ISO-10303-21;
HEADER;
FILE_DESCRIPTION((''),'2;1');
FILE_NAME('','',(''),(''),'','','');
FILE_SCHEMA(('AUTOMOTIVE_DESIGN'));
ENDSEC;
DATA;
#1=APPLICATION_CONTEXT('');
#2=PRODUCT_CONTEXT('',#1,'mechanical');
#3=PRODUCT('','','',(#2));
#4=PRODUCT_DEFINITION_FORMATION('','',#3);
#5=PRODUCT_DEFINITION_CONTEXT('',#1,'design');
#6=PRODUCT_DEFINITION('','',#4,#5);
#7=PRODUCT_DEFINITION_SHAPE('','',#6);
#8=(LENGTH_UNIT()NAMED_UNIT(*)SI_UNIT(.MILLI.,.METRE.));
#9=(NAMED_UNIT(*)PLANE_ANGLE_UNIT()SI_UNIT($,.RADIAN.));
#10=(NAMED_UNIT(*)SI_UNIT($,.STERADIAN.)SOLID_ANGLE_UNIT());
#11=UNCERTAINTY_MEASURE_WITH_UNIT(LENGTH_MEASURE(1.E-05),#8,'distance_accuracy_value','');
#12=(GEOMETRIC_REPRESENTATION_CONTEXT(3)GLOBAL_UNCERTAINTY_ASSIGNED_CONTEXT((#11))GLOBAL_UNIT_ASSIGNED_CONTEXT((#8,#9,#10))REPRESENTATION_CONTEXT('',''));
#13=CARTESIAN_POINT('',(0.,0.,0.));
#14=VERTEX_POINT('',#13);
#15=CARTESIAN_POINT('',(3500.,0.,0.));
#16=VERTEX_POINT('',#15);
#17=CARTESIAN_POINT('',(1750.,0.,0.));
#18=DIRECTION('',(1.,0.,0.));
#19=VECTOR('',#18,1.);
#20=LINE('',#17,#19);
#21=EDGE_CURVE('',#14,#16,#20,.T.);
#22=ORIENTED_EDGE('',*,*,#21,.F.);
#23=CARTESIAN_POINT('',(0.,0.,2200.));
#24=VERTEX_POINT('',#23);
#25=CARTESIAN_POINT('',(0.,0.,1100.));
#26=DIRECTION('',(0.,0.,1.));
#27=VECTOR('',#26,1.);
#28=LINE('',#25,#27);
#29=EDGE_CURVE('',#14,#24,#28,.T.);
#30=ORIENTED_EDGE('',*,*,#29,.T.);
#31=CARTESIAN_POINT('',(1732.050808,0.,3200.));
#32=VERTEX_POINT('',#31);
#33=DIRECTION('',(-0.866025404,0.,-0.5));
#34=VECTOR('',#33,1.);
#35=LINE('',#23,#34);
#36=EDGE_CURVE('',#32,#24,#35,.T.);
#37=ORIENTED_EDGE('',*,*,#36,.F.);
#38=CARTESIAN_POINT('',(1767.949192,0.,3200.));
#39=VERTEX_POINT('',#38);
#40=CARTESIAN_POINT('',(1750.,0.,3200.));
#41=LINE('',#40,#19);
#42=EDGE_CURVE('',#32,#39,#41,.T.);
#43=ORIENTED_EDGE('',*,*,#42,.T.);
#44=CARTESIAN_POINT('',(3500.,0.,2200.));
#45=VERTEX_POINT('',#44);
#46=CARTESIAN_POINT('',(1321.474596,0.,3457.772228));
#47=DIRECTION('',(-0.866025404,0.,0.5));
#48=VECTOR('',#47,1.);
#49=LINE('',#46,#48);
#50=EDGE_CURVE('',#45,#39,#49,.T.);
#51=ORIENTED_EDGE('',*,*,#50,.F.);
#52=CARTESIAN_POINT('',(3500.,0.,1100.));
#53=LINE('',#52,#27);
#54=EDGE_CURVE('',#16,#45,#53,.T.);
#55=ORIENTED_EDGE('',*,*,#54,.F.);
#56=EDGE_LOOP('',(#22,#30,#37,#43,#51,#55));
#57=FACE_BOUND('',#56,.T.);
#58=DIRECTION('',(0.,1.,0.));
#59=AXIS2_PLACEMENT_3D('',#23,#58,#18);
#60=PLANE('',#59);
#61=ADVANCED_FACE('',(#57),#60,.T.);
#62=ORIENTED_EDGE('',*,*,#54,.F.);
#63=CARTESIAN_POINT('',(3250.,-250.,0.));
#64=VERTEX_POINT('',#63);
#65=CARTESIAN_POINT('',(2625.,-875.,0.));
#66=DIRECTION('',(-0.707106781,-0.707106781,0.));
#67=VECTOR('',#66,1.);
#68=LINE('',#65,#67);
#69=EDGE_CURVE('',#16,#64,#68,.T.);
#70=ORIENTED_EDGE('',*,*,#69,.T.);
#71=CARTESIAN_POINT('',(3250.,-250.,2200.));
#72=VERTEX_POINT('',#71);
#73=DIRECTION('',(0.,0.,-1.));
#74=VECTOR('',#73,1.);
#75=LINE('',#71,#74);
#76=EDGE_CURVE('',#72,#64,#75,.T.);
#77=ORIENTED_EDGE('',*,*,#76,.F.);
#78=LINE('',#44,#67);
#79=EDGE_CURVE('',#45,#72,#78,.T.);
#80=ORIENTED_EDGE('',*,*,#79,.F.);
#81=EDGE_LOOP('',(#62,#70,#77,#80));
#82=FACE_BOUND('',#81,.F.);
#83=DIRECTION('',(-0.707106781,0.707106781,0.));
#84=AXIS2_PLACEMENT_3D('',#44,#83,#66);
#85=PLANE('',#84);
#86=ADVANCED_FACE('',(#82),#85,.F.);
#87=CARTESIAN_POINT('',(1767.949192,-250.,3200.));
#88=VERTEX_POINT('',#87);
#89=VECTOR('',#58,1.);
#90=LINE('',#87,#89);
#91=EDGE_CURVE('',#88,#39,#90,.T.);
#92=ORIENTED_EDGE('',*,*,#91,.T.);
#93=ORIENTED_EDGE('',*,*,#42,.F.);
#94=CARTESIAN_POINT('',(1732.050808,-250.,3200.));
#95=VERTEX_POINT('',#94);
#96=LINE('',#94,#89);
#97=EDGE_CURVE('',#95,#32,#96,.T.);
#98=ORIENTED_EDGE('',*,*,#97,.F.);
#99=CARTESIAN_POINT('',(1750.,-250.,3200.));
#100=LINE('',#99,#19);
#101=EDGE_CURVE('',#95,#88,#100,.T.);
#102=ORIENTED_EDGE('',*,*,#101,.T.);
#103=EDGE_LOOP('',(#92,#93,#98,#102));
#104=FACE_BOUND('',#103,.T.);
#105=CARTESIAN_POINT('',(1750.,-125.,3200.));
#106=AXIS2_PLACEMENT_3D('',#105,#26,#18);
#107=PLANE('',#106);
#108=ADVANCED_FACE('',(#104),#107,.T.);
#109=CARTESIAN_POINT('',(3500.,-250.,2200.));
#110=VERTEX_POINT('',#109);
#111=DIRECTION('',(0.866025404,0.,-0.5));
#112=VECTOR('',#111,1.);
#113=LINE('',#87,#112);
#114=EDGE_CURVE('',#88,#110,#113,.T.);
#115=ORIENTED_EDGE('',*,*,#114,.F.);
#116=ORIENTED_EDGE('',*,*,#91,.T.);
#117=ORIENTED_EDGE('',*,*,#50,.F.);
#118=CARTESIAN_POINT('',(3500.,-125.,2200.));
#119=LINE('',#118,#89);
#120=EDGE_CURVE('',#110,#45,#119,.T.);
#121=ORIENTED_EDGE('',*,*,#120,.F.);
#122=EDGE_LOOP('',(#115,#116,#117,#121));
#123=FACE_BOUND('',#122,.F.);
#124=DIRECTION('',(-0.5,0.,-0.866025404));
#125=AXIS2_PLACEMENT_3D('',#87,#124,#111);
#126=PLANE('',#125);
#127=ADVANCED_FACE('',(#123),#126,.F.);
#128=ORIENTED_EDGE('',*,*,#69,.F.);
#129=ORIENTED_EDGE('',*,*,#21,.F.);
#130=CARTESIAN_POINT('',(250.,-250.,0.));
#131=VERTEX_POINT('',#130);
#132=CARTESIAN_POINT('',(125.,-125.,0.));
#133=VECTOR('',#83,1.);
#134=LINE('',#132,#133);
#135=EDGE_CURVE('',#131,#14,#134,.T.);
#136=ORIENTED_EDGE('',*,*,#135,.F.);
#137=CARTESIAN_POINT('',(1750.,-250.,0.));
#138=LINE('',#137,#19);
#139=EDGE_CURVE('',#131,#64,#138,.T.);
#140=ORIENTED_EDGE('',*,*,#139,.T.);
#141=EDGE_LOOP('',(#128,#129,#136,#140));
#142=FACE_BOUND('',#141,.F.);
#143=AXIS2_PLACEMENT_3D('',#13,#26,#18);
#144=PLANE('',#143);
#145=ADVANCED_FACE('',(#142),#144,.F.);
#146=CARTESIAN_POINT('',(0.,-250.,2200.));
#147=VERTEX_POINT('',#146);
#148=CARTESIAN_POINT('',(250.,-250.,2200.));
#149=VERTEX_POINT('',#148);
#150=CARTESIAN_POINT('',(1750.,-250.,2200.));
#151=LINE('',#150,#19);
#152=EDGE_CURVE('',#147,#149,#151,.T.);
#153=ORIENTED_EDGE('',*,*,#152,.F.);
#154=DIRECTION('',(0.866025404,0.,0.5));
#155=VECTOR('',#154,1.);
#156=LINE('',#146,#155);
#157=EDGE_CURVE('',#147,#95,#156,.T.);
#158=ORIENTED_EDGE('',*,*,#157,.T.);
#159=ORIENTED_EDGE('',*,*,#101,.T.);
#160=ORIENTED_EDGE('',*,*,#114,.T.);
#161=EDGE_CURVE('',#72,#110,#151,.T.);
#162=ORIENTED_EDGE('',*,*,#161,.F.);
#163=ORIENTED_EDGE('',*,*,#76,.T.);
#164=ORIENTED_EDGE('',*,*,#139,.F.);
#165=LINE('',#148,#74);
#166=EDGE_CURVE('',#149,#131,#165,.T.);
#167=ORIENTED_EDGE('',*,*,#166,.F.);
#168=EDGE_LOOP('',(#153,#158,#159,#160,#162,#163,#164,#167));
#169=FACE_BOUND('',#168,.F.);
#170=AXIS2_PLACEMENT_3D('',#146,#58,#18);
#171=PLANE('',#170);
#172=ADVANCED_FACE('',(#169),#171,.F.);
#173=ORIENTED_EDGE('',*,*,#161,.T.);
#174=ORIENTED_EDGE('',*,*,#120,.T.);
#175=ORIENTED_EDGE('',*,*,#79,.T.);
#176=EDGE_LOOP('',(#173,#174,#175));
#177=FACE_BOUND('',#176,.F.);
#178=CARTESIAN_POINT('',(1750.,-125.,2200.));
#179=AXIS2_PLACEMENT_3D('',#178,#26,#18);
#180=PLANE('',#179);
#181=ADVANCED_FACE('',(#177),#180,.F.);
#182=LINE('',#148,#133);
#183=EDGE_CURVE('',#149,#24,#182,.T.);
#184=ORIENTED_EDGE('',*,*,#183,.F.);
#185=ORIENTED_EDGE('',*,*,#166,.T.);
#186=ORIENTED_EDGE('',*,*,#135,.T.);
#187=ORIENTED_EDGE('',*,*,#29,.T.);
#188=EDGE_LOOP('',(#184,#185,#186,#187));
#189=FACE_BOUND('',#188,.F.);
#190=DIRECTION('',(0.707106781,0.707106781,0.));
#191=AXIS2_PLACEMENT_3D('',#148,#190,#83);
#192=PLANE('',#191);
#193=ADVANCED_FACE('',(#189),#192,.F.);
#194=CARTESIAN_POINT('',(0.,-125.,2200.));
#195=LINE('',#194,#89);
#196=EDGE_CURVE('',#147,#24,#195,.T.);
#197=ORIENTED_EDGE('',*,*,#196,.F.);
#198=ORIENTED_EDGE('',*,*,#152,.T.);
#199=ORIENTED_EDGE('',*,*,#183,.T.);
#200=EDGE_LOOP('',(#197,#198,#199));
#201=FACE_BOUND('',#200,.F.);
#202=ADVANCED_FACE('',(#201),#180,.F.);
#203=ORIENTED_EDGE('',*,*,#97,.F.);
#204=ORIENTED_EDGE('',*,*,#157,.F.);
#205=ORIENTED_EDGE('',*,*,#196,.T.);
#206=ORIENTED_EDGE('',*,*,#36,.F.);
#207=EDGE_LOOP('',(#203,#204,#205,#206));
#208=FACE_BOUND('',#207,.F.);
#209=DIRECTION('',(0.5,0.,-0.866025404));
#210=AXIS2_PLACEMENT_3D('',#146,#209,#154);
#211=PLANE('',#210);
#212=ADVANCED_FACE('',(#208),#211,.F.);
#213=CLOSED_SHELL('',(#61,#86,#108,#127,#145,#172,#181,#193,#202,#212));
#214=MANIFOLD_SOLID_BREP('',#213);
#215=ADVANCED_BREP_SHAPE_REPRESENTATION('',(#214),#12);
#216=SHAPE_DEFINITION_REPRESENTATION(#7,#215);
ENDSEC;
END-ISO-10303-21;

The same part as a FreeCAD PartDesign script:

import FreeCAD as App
import Part
import Sketcher
Q = App.Units.Quantity


def add_polygon(sketch, points):
    """Adds a closed chain of lines whose ends are joined by coincident constraints."""
    first, n = sketch.GeometryCount, len(points)
    for a, b in zip(points, points[1:] + points[:1]):
        sketch.addGeometry(Part.LineSegment(App.Vector(*a, 0), App.Vector(*b, 0)), False)
    for i in range(n):
        sketch.addConstraint(Sketcher.Constraint("Coincident", first + i, 2, first + (i + 1) % n, 1))

doc = App.newDocument("Part")
body = doc.addObject("PartDesign::Body", "Body")

sketch1 = body.newObject("Sketcher::SketchObject", "Sketch")
sketch1.AttachmentSupport = (doc.getObject("XZ_Plane"), [""])
sketch1.MapMode = "FlatFace"
add_polygon(sketch1, [(0, 2200), (0, 0), (3500, 0), (3500, 2200)])
sketch1.addConstraint(Sketcher.Constraint("Vertical", 0))
sketch1.addConstraint(Sketcher.Constraint("Horizontal", 1))
sketch1.addConstraint(Sketcher.Constraint("Vertical", 2))
sketch1.addConstraint(Sketcher.Constraint("Horizontal", 3))
sketch1.addConstraint(Sketcher.Constraint("Coincident", 0, 2, -1, 1))
sketch1.addConstraint(Sketcher.Constraint("DistanceX", 1, 1, 1, 2, 3500.0))
sketch1.addConstraint(Sketcher.Constraint("DistanceY", 0, 2, 0, 1, 2200.0))
pad1 = body.newObject("PartDesign::Pad", "Pad")
pad1.Profile = sketch1
pad1.Length = 250

sketch2 = body.newObject("Sketcher::SketchObject", "Sketch001")
sketch2.AttachmentSupport = (doc.getObject("XY_Plane"), [""])
sketch2.MapMode = "FlatFace"
sketch2.AttachmentOffset = App.Placement(App.Vector(0, 0, 2200), App.Rotation())
add_polygon(sketch2, [(250, -250), (0, 0), (0, -250)])
add_polygon(sketch2, [(3250, -250), (3500, -250), (3500, 0)])
sketch2.addConstraint(Sketcher.Constraint("Vertical", 1))
sketch2.addConstraint(Sketcher.Constraint("Horizontal", 2))
sketch2.addConstraint(Sketcher.Constraint("Horizontal", 3))
sketch2.addConstraint(Sketcher.Constraint("Vertical", 4))
sketch2.addConstraint(Sketcher.Constraint("Coincident", 0, 2, -1, 1))
sketch2.addConstraint(Sketcher.Constraint("PointOnObject", 4, 2, -1))
sketch2.addConstraint(Sketcher.Constraint("Perpendicular", 0, 5))
sketch2.addConstraint(Sketcher.Constraint("Horizontal", 2, 2, 3, 2))
sketch2.addConstraint(Sketcher.Constraint("Equal", 2, 3))
sketch2.addConstraint(Sketcher.Constraint("DistanceX", 2, 1, 2, 2, 250.0))
sketch2.addConstraint(Sketcher.Constraint("DistanceX", -1, 1, 3, 2, 3500.0))
pocket1 = body.newObject("PartDesign::Pocket", "Pocket")
pocket1.Profile = sketch2
pocket1.Type = "ThroughAll"

sketch3 = body.newObject("Sketcher::SketchObject", "Sketch002")
sketch3.AttachmentSupport = (doc.getObject("XY_Plane"), [""])
sketch3.MapMode = "FlatFace"
sketch3.AttachmentOffset = App.Placement(App.Vector(0, 0, 2200), App.Rotation())
add_polygon(sketch3, [(0, 0), (0, -250), (3500, -250), (3500, 0)])
sketch3.addConstraint(Sketcher.Constraint("Vertical", 0))
sketch3.addConstraint(Sketcher.Constraint("Horizontal", 1))
sketch3.addConstraint(Sketcher.Constraint("Vertical", 2))
sketch3.addConstraint(Sketcher.Constraint("Horizontal", 3))
sketch3.addConstraint(Sketcher.Constraint("Coincident", 3, 2, -1, 1))
sketch3.addConstraint(Sketcher.Constraint("DistanceX", 1, 1, 1, 2, 3500.0))
sketch3.addConstraint(Sketcher.Constraint("DistanceY", 0, 2, 0, 1, 250.0))
pad2 = body.newObject("PartDesign::Pad", "Pad001")
pad2.Profile = sketch3
pad2.Length = 1000

sketch4 = body.newObject("Sketcher::SketchObject", "Sketch003")
sketch4.AttachmentSupport = (doc.getObject("XZ_Plane"), [""])
sketch4.MapMode = "FlatFace"
sketch4.AttachmentOffset = App.Placement(App.Vector(0, 0, 250), App.Rotation())
add_polygon(sketch4, [(0, 3200), (0, 2200), (1732, 3200)])
add_polygon(sketch4, [(3500, 3200), (1768, 3200), (3500, 2200)])
add_polygon(sketch4, [(1750, 3210), (1732, 3200), (1768, 3200)])
sketch4.addConstraint(Sketcher.Constraint("Vertical", 0))
sketch4.addConstraint(Sketcher.Constraint("Horizontal", 2))
sketch4.addConstraint(Sketcher.Constraint("Horizontal", 3))
sketch4.addConstraint(Sketcher.Constraint("Vertical", 5))
sketch4.addConstraint(Sketcher.Constraint("Horizontal", 7))
sketch4.addConstraint(Sketcher.Constraint("Coincident", 6, 2, 1, 2))
sketch4.addConstraint(Sketcher.Constraint("Coincident", 7, 2, 3, 2))
sketch4.addConstraint(Sketcher.Constraint("PointOnObject", 0, 2, -2))
sketch4.addConstraint(Sketcher.Constraint("Parallel", 1, 6))
sketch4.addConstraint(Sketcher.Constraint("Parallel", 4, 8))
sketch4.addConstraint(Sketcher.Constraint("Horizontal", 0, 2, 4, 2))
sketch4.addConstraint(Sketcher.Constraint("Equal", 2, 3))
sketch4.addConstraint(Sketcher.Constraint("DistanceY", 0, 2, 0, 1, 1000.0))
sketch4.addConstraint(Sketcher.Constraint("Angle", 1, Q("30 deg")))
sketch4.addConstraint(Sketcher.Constraint("DistanceY", -1, 1, 0, 2, 2200.0))
sketch4.addConstraint(Sketcher.Constraint("DistanceX", -1, 1, 4, 2, 3500.0))
pocket2 = body.newObject("PartDesign::Pocket", "Pocket001")
pocket2.Profile = sketch4
pocket2.Type = "ThroughAll"

doc.recompute()
